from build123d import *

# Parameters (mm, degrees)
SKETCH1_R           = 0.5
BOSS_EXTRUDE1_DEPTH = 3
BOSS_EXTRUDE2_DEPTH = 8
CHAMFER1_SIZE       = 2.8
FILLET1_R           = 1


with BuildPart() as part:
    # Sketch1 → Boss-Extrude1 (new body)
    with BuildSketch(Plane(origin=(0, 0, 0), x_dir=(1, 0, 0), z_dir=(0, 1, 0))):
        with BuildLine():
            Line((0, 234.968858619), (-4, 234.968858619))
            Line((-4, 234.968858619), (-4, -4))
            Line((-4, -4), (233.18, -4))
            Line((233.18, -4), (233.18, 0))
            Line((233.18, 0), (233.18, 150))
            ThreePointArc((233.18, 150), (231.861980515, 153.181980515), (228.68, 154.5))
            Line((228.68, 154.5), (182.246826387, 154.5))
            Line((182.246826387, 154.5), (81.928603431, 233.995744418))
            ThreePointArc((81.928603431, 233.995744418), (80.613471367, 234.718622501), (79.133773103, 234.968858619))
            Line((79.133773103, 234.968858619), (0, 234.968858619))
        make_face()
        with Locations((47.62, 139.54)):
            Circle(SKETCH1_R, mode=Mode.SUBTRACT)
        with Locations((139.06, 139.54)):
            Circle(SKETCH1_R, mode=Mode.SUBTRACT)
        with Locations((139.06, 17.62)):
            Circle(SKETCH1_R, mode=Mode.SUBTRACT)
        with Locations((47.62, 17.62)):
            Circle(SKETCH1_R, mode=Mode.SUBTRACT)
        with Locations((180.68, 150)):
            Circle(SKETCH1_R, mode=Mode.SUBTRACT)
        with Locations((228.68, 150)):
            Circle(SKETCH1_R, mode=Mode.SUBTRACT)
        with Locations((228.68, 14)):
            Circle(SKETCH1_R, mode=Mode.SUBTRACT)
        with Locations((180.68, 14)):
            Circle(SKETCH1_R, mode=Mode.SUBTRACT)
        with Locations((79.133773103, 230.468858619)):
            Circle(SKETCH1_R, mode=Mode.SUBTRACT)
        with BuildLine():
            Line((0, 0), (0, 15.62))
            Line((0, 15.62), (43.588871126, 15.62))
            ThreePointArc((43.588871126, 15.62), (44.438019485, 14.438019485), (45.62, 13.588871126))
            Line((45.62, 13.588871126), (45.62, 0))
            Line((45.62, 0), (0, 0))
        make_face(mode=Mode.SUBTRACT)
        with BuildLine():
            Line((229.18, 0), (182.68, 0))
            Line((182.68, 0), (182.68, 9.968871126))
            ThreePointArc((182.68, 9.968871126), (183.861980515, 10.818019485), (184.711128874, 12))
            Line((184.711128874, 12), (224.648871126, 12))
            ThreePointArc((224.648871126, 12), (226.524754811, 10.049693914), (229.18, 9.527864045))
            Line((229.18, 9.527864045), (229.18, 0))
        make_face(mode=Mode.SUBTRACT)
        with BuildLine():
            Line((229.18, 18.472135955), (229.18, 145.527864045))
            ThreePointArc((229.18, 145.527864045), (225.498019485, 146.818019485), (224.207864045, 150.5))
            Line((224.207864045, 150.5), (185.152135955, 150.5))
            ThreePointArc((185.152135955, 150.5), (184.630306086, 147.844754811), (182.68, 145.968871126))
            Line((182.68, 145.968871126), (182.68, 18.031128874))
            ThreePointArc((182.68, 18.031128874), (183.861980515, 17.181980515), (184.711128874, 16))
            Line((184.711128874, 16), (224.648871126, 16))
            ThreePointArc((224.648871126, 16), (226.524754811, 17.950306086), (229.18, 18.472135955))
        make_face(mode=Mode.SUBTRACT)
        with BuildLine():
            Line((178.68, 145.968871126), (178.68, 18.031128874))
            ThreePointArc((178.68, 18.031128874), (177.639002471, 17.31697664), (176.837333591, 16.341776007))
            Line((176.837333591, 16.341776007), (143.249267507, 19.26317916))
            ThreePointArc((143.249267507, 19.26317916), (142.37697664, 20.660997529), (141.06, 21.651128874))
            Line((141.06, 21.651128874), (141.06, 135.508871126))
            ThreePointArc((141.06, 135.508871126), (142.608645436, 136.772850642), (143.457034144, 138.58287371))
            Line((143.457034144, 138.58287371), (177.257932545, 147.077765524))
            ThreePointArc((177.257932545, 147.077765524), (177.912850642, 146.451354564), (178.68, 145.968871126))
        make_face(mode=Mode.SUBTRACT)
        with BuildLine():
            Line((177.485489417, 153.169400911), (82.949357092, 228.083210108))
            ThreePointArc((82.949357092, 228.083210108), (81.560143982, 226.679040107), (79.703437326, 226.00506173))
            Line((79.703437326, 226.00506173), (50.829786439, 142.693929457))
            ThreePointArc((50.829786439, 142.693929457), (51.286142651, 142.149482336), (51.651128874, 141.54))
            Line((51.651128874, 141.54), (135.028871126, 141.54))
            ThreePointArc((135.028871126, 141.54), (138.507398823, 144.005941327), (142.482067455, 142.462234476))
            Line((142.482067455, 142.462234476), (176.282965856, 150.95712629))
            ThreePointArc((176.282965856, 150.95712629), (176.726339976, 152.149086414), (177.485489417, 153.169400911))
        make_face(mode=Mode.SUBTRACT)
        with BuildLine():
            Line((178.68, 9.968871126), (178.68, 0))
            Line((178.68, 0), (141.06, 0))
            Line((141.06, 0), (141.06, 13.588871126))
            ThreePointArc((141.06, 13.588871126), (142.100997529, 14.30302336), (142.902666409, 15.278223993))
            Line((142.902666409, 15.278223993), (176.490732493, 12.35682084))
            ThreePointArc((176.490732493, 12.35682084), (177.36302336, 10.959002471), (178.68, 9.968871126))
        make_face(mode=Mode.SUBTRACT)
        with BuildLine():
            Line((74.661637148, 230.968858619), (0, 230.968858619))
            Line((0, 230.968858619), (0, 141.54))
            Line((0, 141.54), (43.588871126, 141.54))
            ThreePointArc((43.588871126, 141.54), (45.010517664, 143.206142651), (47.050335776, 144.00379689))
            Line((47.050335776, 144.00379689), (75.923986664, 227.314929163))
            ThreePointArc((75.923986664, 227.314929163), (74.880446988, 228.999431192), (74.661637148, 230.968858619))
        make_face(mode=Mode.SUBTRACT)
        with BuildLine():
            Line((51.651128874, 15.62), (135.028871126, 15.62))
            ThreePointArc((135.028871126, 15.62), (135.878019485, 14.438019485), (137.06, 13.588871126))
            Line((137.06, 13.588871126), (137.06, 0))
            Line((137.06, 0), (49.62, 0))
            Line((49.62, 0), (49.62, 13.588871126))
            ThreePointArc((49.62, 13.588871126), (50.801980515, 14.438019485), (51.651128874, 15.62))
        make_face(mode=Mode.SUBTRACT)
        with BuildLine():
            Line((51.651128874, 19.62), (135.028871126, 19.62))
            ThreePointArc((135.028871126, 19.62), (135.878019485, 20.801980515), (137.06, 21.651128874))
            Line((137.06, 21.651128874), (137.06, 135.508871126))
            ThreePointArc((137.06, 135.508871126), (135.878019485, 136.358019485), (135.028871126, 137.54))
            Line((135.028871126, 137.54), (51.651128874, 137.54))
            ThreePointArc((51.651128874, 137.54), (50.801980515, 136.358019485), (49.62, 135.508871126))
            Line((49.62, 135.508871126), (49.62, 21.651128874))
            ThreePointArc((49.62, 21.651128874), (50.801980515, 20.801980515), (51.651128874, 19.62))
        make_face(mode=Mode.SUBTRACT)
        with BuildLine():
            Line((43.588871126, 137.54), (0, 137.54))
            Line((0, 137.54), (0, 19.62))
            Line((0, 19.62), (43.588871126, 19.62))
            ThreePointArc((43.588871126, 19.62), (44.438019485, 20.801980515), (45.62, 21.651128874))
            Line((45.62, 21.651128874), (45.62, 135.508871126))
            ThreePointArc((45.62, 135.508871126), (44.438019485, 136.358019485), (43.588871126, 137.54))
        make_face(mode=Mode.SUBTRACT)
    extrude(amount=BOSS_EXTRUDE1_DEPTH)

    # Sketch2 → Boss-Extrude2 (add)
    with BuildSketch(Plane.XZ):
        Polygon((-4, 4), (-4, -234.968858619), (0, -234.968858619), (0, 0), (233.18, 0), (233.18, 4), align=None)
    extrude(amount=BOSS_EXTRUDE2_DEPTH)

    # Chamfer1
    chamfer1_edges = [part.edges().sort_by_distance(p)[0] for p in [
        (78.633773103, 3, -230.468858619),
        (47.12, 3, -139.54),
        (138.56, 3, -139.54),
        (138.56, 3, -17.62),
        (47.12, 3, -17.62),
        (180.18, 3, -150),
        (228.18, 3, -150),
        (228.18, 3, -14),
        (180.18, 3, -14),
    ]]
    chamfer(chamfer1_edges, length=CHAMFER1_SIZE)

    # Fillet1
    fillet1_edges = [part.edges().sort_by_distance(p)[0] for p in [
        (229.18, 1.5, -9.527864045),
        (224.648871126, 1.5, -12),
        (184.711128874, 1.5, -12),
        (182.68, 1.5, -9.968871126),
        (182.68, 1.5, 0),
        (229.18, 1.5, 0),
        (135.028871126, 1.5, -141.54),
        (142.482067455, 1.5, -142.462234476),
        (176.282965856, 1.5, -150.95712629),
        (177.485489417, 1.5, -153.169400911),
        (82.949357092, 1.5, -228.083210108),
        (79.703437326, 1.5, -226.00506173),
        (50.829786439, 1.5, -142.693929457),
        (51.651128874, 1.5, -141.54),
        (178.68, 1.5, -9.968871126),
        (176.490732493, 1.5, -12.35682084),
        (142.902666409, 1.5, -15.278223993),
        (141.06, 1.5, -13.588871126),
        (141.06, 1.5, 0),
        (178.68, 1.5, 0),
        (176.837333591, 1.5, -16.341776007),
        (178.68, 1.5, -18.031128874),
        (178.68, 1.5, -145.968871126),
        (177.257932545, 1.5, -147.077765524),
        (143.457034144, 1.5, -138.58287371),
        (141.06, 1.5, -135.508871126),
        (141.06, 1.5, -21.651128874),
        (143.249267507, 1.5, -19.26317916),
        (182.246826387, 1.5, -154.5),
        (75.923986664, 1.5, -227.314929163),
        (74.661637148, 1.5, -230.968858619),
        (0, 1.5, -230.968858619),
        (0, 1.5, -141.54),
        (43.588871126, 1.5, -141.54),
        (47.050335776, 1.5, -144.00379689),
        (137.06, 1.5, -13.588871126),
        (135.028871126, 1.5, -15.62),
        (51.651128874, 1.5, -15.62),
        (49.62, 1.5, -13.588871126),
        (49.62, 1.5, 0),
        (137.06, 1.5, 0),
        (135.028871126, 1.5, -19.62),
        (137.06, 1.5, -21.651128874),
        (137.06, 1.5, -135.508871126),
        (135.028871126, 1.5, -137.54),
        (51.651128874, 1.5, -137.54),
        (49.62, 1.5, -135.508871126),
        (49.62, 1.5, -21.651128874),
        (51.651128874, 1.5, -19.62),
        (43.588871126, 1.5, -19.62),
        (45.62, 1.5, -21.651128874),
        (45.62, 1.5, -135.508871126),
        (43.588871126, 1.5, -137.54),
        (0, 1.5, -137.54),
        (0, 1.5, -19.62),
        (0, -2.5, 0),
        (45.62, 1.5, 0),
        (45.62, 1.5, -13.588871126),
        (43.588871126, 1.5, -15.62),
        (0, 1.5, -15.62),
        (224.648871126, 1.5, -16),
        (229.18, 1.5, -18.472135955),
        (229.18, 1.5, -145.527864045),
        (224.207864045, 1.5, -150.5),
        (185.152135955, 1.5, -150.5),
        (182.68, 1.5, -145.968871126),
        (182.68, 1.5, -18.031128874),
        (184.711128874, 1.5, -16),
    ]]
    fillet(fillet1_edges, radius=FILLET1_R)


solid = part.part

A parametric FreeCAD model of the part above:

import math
import FreeCAD as App
import Part
import Sketcher


def edges_at(feature, points):
    """Names of the edges that pass closest to the given points."""
    edges = feature.Shape.Edges
    near = lambda p: min(range(len(edges)), key=lambda i: edges[i].distToShape(Part.Vertex(*p))[0])
    return sorted({f"Edge{near(p) + 1}" for p in points})

doc = App.newDocument("Part")
params = doc.addObject("Spreadsheet::Sheet", "Params")
for row, (alias, value) in enumerate([
    ("sketch1_diameter", "1 mm"),
    ("sketch1_radius", "4.5 mm"),
    ("sketch1_height", "154 mm"),
    ("sketch1_width", "46.5 mm"),
    ("sketch1_width2", "237.18 mm"),
    ("pad1_length", "3 mm"),
    ("sketch2_width", "4 mm"),
    ("sketch2_width2", "233.18 mm"),
    ("pad2_length", "8 mm"),
    ("chamfer_size", "2.8 mm"),
    ("fillet_radius", "1 mm"),
], start=1):
    params.set(f"A{row}", alias)
    params.set(f"B{row}", "=" + value)
    params.setAlias(f"B{row}", alias)

body = doc.addObject("PartDesign::Body", "Body")

# Sketch on XZ plane
sketch1 = body.newObject("Sketcher::SketchObject", "Sketch")
sketch1.AttachmentSupport = (doc.getObject("XZ_Plane"), [""])
sketch1.MapMode = "FlatFace"
sketch1.addGeometry([
    Part.LineSegment(App.Vector(-4, -235, 0), App.Vector(-4, 4, 0)),  # 0
    Part.LineSegment(App.Vector(-4, 4, 0), App.Vector(233.2, 4, 0)),  # 1
    Part.LineSegment(App.Vector(233.2, 4, 0), App.Vector(233.2, -150, 0)),  # 2
    Part.ArcOfCircle(Part.Circle(App.Vector(228.7, -150, 0), App.Vector(0, 0, 1), 4.5), math.radians(-90), math.radians(0)),  # 3
    Part.LineSegment(App.Vector(228.7, -154.5, 0), App.Vector(182.2, -154.5, 0)),  # 4
    Part.LineSegment(App.Vector(182.2, -154.5, 0), App.Vector(81.9, -234, 0)),  # 5
    Part.ArcOfCircle(Part.Circle(App.Vector(79.1, -230.5, 0), App.Vector(0, 0, 1), 4.5), math.radians(-90), math.radians(-52)),  # 6
    Part.LineSegment(App.Vector(79.1, -235, 0), App.Vector(-4, -235, 0)),  # 7
    Part.LineSegment(App.Vector(45.6, 0, 0), App.Vector(0, 0, 0)),  # 8
    Part.LineSegment(App.Vector(0, 0, 0), App.Vector(0, -15.6, 0)),  # 9
    Part.LineSegment(App.Vector(0, -15.6, 0), App.Vector(43.6, -15.6, 0)),  # 10
    Part.ArcOfCircle(Part.Circle(App.Vector(47.6, -17.6, 0), App.Vector(0, 0, 1), 4.5), math.radians(116), math.radians(154)),  # 11
    Part.LineSegment(App.Vector(45.6, -13.6, 0), App.Vector(45.6, 0, 0)),  # 12
    Part.Circle(App.Vector(47.6, -17.6, 0), App.Vector(0, 0, 1), 0.5),  # 13
    Part.ArcOfCircle(Part.Circle(App.Vector(47.6, -17.6, 0), App.Vector(0, 0, 1), 4.5), math.radians(26), math.radians(64)),  # 14
    Part.LineSegment(App.Vector(51.7, -15.6, 0), App.Vector(135, -15.6, 0)),  # 15
    Part.ArcOfCircle(Part.Circle(App.Vector(139.1, -17.6, 0), App.Vector(0, 0, 1), 4.5), math.radians(116), math.radians(154)),  # 16
    Part.LineSegment(App.Vector(137.1, -13.6, 0), App.Vector(137.1, 0, 0)),  # 17
    Part.LineSegment(App.Vector(137.1, 0, 0), App.Vector(49.6, 0, 0)),  # 18
    Part.LineSegment(App.Vector(49.6, 0, 0), App.Vector(49.6, -13.6, 0)),  # 19
    Part.LineSegment(App.Vector(0, -137.5, 0), App.Vector(43.6, -137.5, 0)),  # 20
    Part.ArcOfCircle(Part.Circle(App.Vector(47.6, -139.5, 0), App.Vector(0, 0, 1), 4.5), math.radians(116), math.radians(154)),  # 21
    Part.LineSegment(App.Vector(45.6, -135.5, 0), App.Vector(45.6, -21.7, 0)),  # 22
    Part.ArcOfCircle(Part.Circle(App.Vector(47.6, -17.6, 0), App.Vector(0, 0, 1), 4.5), math.radians(-154), math.radians(-116)),  # 23
    Part.LineSegment(App.Vector(43.6, -19.6, 0), App.Vector(0, -19.6, 0)),  # 24
    Part.LineSegment(App.Vector(0, -19.6, 0), App.Vector(0, -137.5, 0)),  # 25
    Part.LineSegment(App.Vector(135, -19.6, 0), App.Vector(51.7, -19.6, 0)),  # 26
    Part.ArcOfCircle(Part.Circle(App.Vector(47.6, -17.6, 0), App.Vector(0, 0, 1), 4.5), math.radians(-64), math.radians(-26)),  # 27
    Part.LineSegment(App.Vector(49.6, -21.7, 0), App.Vector(49.6, -135.5, 0)),  # 28
    Part.ArcOfCircle(Part.Circle(App.Vector(47.6, -139.5, 0), App.Vector(0, 0, 1), 4.5), math.radians(26), math.radians(64)),  # 29
    Part.LineSegment(App.Vector(51.7, -137.5, 0), App.Vector(135, -137.5, 0)),  # 30
    Part.ArcOfCircle(Part.Circle(App.Vector(139.1, -139.5, 0), App.Vector(0, 0, 1), 4.5), math.radians(116), math.radians(154)),  # 31
    Part.LineSegment(App.Vector(137.1, -135.5, 0), App.Vector(137.1, -21.7, 0)),  # 32
    Part.ArcOfCircle(Part.Circle(App.Vector(139.1, -17.6, 0), App.Vector(0, 0, 1), 4.5), math.radians(-154), math.radians(-116)),  # 33
    Part.Circle(App.Vector(139.1, -17.6, 0), App.Vector(0, 0, 1), 0.5),  # 34
    Part.ArcOfCircle(Part.Circle(App.Vector(180.7, -14, 0), App.Vector(0, 0, 1), 4.5), math.radians(116), math.radians(159)),  # 35
    Part.LineSegment(App.Vector(178.7, -10, 0), App.Vector(178.7, 0, 0)),  # 36
    Part.LineSegment(App.Vector(178.7, 0, 0), App.Vector(141.1, 0, 0)),  # 37
    Part.LineSegment(App.Vector(141.1, 0, 0), App.Vector(141.1, -13.6, 0)),  # 38
    Part.ArcOfCircle(Part.Circle(App.Vector(139.1, -17.6, 0), App.Vector(0, 0, 1), 4.5), math.radians(31), math.radians(64)),  # 39
    Part.LineSegment(App.Vector(142.9, -15.3, 0), App.Vector(176.5, -12.4, 0)),  # 40
    Part.Circle(App.Vector(180.7, -14, 0), App.Vector(0, 0, 1), 0.5),  # 41
    Part.LineSegment(App.Vector(229.2, -9.5, 0), App.Vector(229.2, 0, 0)),  # 42
    Part.LineSegment(App.Vector(229.2, 0, 0), App.Vector(182.7, 0, 0)),  # 43
    Part.LineSegment(App.Vector(182.7, 0, 0), App.Vector(182.7, -10, 0)),  # 44
    Part.ArcOfCircle(Part.Circle(App.Vector(180.7, -14, 0), App.Vector(0, 0, 1), 4.5), math.radians(26), math.radians(64)),  # 45
    Part.LineSegment(App.Vector(184.7, -12, 0), App.Vector(224.6, -12, 0)),  # 46
    Part.ArcOfCircle(Part.Circle(App.Vector(228.7, -14, 0), App.Vector(0, 0, 1), 4.5), math.radians(84), math.radians(154)),  # 47
    Part.Circle(App.Vector(228.7, -14, 0), App.Vector(0, 0, 1), 0.5),  # 48
    Part.ArcOfCircle(Part.Circle(App.Vector(180.7, -150, 0), App.Vector(0, 0, 1), 4.5), math.radians(116), math.radians(140)),  # 49
    Part.LineSegment(App.Vector(178.7, -146, 0), App.Vector(178.7, -18, 0)),  # 50
    Part.ArcOfCircle(Part.Circle(App.Vector(180.7, -14, 0), App.Vector(0, 0, 1), 4.5), math.radians(-149), math.radians(-116)),  # 51
    Part.LineSegment(App.Vector(176.8, -16.3, 0), App.Vector(143.2, -19.3, 0)),  # 52
    Part.ArcOfCircle(Part.Circle(App.Vector(139.1, -17.6, 0), App.Vector(0, 0, 1), 4.5), math.radians(-64), math.radians(-21)),  # 53
    Part.LineSegment(App.Vector(141.1, -21.7, 0), App.Vector(141.1, -135.5, 0)),  # 54
    Part.ArcOfCircle(Part.Circle(App.Vector(139.1, -139.5, 0), App.Vector(0, 0, 1), 4.5), math.radians(12), math.radians(64)),  # 55
    Part.LineSegment(App.Vector(143.5, -138.6, 0), App.Vector(177.3, -147.1, 0)),  # 56
    Part.LineSegment(App.Vector(229.2, -145.5, 0), App.Vector(229.2, -18.5, 0)),  # 57
    Part.ArcOfCircle(Part.Circle(App.Vector(228.7, -14, 0), App.Vector(0, 0, 1), 4.5), math.radians(-154), math.radians(-84)),  # 58
    Part.LineSegment(App.Vector(224.6, -16, 0), App.Vector(184.7, -16, 0)),  # 59
    Part.ArcOfCircle(Part.Circle(App.Vector(180.7, -14, 0), App.Vector(0, 0, 1), 4.5), math.radians(-64), math.radians(-26)),  # 60
    Part.LineSegment(App.Vector(182.7, -18, 0), App.Vector(182.7, -146, 0)),  # 61
    Part.ArcOfCircle(Part.Circle(App.Vector(180.7, -150, 0), App.Vector(0, 0, 1), 4.5), math.radians(-6), math.radians(64)),  # 62
    Part.LineSegment(App.Vector(185.2, -150.5, 0), App.Vector(224.2, -150.5, 0)),  # 63
    Part.ArcOfCircle(Part.Circle(App.Vector(228.7, -150, 0), App.Vector(0, 0, 1), 4.5), math.radians(84), math.radians(186)),  # 64
    Part.Circle(App.Vector(47.6, -139.5, 0), App.Vector(0, 0, 1), 0.5),  # 65
    Part.LineSegment(App.Vector(0, -231, 0), App.Vector(74.7, -231, 0)),  # 66
    Part.ArcOfCircle(Part.Circle(App.Vector(79.1, -230.5, 0), App.Vector(0, 0, 1), 4.5), math.radians(136), math.radians(186)),  # 67
    Part.LineSegment(App.Vector(75.9, -227.3, 0), App.Vector(47.1, -144, 0)),  # 68
    Part.ArcOfCircle(Part.Circle(App.Vector(47.6, -139.5, 0), App.Vector(0, 0, 1), 4.5), math.radians(-154), math.radians(-97)),  # 69
    Part.LineSegment(App.Vector(43.6, -141.5, 0), App.Vector(0, -141.5, 0)),  # 70
    Part.LineSegment(App.Vector(0, -141.5, 0), App.Vector(0, -231, 0)),  # 71
    Part.LineSegment(App.Vector(82.9, -228.1, 0), App.Vector(177.5, -153.2, 0)),  # 72
    Part.ArcOfCircle(Part.Circle(App.Vector(180.7, -150, 0), App.Vector(0, 0, 1), 4.5), math.radians(-168), math.radians(-135)),  # 73
    Part.LineSegment(App.Vector(176.3, -151, 0), App.Vector(142.5, -142.5, 0)),  # 74
    Part.ArcOfCircle(Part.Circle(App.Vector(139.1, -139.5, 0), App.Vector(0, 0, 1), 4.5), math.radians(-154), math.radians(-40)),  # 75
    Part.LineSegment(App.Vector(135, -141.5, 0), App.Vector(51.7, -141.5, 0)),  # 76
    Part.ArcOfCircle(Part.Circle(App.Vector(47.6, -139.5, 0), App.Vector(0, 0, 1), 4.5), math.radians(-44.5), math.radians(-26.39)),  # 77
    Part.LineSegment(App.Vector(50.8, -142.7, 0), App.Vector(79.7, -226, 0)),  # 78
    Part.ArcOfCircle(Part.Circle(App.Vector(79.1, -230.5, 0), App.Vector(0, 0, 1), 4.5), math.radians(32), math.radians(83)),  # 79
    Part.Circle(App.Vector(79.1, -230.5, 0), App.Vector(0, 0, 1), 0.5),  # 80
    Part.Circle(App.Vector(139.1, -139.5, 0), App.Vector(0, 0, 1), 0.5),  # 81
    Part.Circle(App.Vector(180.7, -150, 0), App.Vector(0, 0, 1), 0.5),  # 82
    Part.Circle(App.Vector(228.7, -150, 0), App.Vector(0, 0, 1), 0.5),  # 83
], False)
sketch1.addConstraint([
    Sketcher.Constraint("Coincident", 0, 2, 1, 1),
    Sketcher.Constraint("Coincident", 1, 2, 2, 1),
    Sketcher.Constraint("Tangent", 2, 2, 3, 2),
    Sketcher.Constraint("Tangent", 3, 1, 4, 1),
    Sketcher.Constraint("Coincident", 4, 2, 5, 1),
    Sketcher.Constraint("Tangent", 5, 2, 6, 2),
    Sketcher.Constraint("Tangent", 6, 1, 7, 1),
    Sketcher.Constraint("Coincident", 7, 2, 0, 1),
    Sketcher.Constraint("Coincident", 8, 2, 9, 1),
    Sketcher.Constraint("Coincident", 9, 2, 10, 1),
    Sketcher.Constraint("Coincident", 10, 2, 11, 2),
    Sketcher.Constraint("Coincident", 11, 1, 12, 1),
    Sketcher.Constraint("Coincident", 12, 2, 8, 1),
    Sketcher.Constraint("Coincident", 14, 1, 15, 1),
    Sketcher.Constraint("Coincident", 15, 2, 16, 2),
    Sketcher.Constraint("Coincident", 16, 1, 17, 1),
    Sketcher.Constraint("Coincident", 17, 2, 18, 1),
    Sketcher.Constraint("Coincident", 18, 2, 19, 1),
    Sketcher.Constraint("Coincident", 19, 2, 14, 2),
    Sketcher.Constraint("Coincident", 20, 2, 21, 2),
    Sketcher.Constraint("Coincident", 21, 1, 22, 1),
    Sketcher.Constraint("Coincident", 22, 2, 23, 2),
    Sketcher.Constraint("Coincident", 23, 1, 24, 1),
    Sketcher.Constraint("Coincident", 24, 2, 25, 1),
    Sketcher.Constraint("Coincident", 25, 2, 20, 1),
    Sketcher.Constraint("Coincident", 26, 2, 27, 2),
    Sketcher.Constraint("Coincident", 27, 1, 28, 1),
    Sketcher.Constraint("Coincident", 28, 2, 29, 2),
    Sketcher.Constraint("Coincident", 29, 1, 30, 1),
    Sketcher.Constraint("Coincident", 30, 2, 31, 2),
    Sketcher.Constraint("Coincident", 31, 1, 32, 1),
    Sketcher.Constraint("Coincident", 32, 2, 33, 2),
    Sketcher.Constraint("Coincident", 33, 1, 26, 1),
    Sketcher.Constraint("Coincident", 35, 1, 36, 1),
    Sketcher.Constraint("Coincident", 36, 2, 37, 1),
    Sketcher.Constraint("Coincident", 37, 2, 38, 1),
    Sketcher.Constraint("Coincident", 38, 2, 39, 2),
    Sketcher.Constraint("Coincident", 39, 1, 40, 1),
    Sketcher.Constraint("Coincident", 40, 2, 35, 2),
    Sketcher.Constraint("Coincident", 42, 2, 43, 1),
    Sketcher.Constraint("Coincident", 43, 2, 44, 1),
    Sketcher.Constraint("Coincident", 44, 2, 45, 2),
    Sketcher.Constraint("Coincident", 45, 1, 46, 1),
    Sketcher.Constraint("Coincident", 46, 2, 47, 2),
    Sketcher.Constraint("Coincident", 47, 1, 42, 1),
    Sketcher.Constraint("Coincident", 49, 1, 50, 1),
    Sketcher.Constraint("Coincident", 50, 2, 51, 2),
    Sketcher.Constraint("Coincident", 51, 1, 52, 1),
    Sketcher.Constraint("Coincident", 52, 2, 53, 2),
    Sketcher.Constraint("Coincident", 53, 1, 54, 1),
    Sketcher.Constraint("Coincident", 54, 2, 55, 2),
    Sketcher.Constraint("Coincident", 55, 1, 56, 1),
    Sketcher.Constraint("Coincident", 56, 2, 49, 2),
    Sketcher.Constraint("Coincident", 57, 2, 58, 2),
    Sketcher.Constraint("Coincident", 58, 1, 59, 1),
    Sketcher.Constraint("Coincident", 59, 2, 60, 2),
    Sketcher.Constraint("Coincident", 60, 1, 61, 1),
    Sketcher.Constraint("Coincident", 61, 2, 62, 2),
    Sketcher.Constraint("Coincident", 62, 1, 63, 1),
    Sketcher.Constraint("Coincident", 63, 2, 64, 2),
    Sketcher.Constraint("Coincident", 64, 1, 57, 1),
    Sketcher.Constraint("Coincident", 66, 2, 67, 2),
    Sketcher.Constraint("Coincident", 67, 1, 68, 1),
    Sketcher.Constraint("Coincident", 68, 2, 69, 2),
    Sketcher.Constraint("Coincident", 69, 1, 70, 1),
    Sketcher.Constraint("Coincident", 70, 2, 71, 1),
    Sketcher.Constraint("Coincident", 71, 2, 66, 1),
    Sketcher.Constraint("Coincident", 72, 2, 73, 2),
    Sketcher.Constraint("Coincident", 73, 1, 74, 1),
    Sketcher.Constraint("Coincident", 74, 2, 75, 2),
    Sketcher.Constraint("Coincident", 75, 1, 76, 1),
    Sketcher.Constraint("Coincident", 76, 2, 77, 2),
    Sketcher.Constraint("Coincident", 77, 1, 78, 1),
    Sketcher.Constraint("Coincident", 78, 2, 79, 2),
    Sketcher.Constraint("Coincident", 79, 1, 72, 1),
    Sketcher.Constraint("Vertical", 0),
    Sketcher.Constraint("Horizontal", 1),
    Sketcher.Constraint("Vertical", 2),
    Sketcher.Constraint("Horizontal", 4),
    Sketcher.Constraint("Horizontal", 7),
    Sketcher.Constraint("Horizontal", 8),
    Sketcher.Constraint("Vertical", 9),
    Sketcher.Constraint("Horizontal", 10),
    Sketcher.Constraint("Vertical", 12),
    Sketcher.Constraint("Horizontal", 15),
    Sketcher.Constraint("Vertical", 17),
    Sketcher.Constraint("Horizontal", 18),
    Sketcher.Constraint("Vertical", 19),
    Sketcher.Constraint("Horizontal", 20),
    Sketcher.Constraint("Vertical", 22),
    Sketcher.Constraint("Horizontal", 24),
    Sketcher.Constraint("Vertical", 25),
    Sketcher.Constraint("Horizontal", 26),
    Sketcher.Constraint("Vertical", 28),
    Sketcher.Constraint("Horizontal", 30),
    Sketcher.Constraint("Vertical", 32),
    Sketcher.Constraint("Vertical", 36),
    Sketcher.Constraint("Horizontal", 37),
    Sketcher.Constraint("Vertical", 38),
    Sketcher.Constraint("Vertical", 42),
    Sketcher.Constraint("Horizontal", 43),
    Sketcher.Constraint("Vertical", 44),
    Sketcher.Constraint("Horizontal", 46),
    Sketcher.Constraint("Vertical", 50),
    Sketcher.Constraint("Vertical", 54),
    Sketcher.Constraint("Vertical", 57),
    Sketcher.Constraint("Horizontal", 59),
    Sketcher.Constraint("Vertical", 61),
    Sketcher.Constraint("Horizontal", 63),
    Sketcher.Constraint("Horizontal", 66),
    Sketcher.Constraint("Horizontal", 70),
    Sketcher.Constraint("Vertical", 71),
    Sketcher.Constraint("Horizontal", 76),
    Sketcher.Constraint("Coincident", 8, 2, -1, 1),
    Sketcher.Constraint("Coincident", 13, 3, 11, 3),
    Sketcher.Constraint("Coincident", 14, 3, 11, 3),
    Sketcher.Constraint("Coincident", 23, 3, 11, 3),
    Sketcher.Constraint("Coincident", 27, 3, 11, 3),
    Sketcher.Constraint("Coincident", 29, 3, 21, 3),
    Sketcher.Constraint("Coincident", 33, 3, 16, 3),
    Sketcher.Constraint("Coincident", 34, 3, 16, 3),
    Sketcher.Constraint("Coincident", 39, 3, 16, 3),
    Sketcher.Constraint("Coincident", 41, 3, 35, 3),
    Sketcher.Constraint("Coincident", 45, 3, 35, 3),
    Sketcher.Constraint("Coincident", 48, 3, 47, 3),
    Sketcher.Constraint("Coincident", 51, 3, 35, 3),
    Sketcher.Constraint("Coincident", 53, 3, 16, 3),
    Sketcher.Constraint("Coincident", 55, 3, 31, 3),
    Sketcher.Constraint("Coincident", 58, 3, 47, 3),
    Sketcher.Constraint("Coincident", 60, 3, 35, 3),
    Sketcher.Constraint("Coincident", 62, 3, 49, 3),
    Sketcher.Constraint("Coincident", 64, 3, 3, 3),
    Sketcher.Constraint("Coincident", 65, 3, 21, 3),
    Sketcher.Constraint("Coincident", 67, 3, 6, 3),
    Sketcher.Constraint("Coincident", 69, 3, 21, 3),
    Sketcher.Constraint("Coincident", 73, 3, 49, 3),
    Sketcher.Constraint("Coincident", 75, 3, 31, 3),
    Sketcher.Constraint("Coincident", 77, 3, 21, 3),
    Sketcher.Constraint("Coincident", 79, 3, 6, 3),
    Sketcher.Constraint("Coincident", 80, 3, 6, 3),
    Sketcher.Constraint("Coincident", 81, 3, 31, 3),
    Sketcher.Constraint("Coincident", 82, 3, 49, 3),
    Sketcher.Constraint("Coincident", 83, 3, 3, 3),
    Sketcher.Constraint("Equal", 3, 6),
    Sketcher.Constraint("Equal", 6, 11),
    Sketcher.Constraint("Equal", 11, 14),
    Sketcher.Constraint("Equal", 14, 16),
    Sketcher.Constraint("Equal", 16, 21),
    Sketcher.Constraint("Equal", 21, 23),
    Sketcher.Constraint("Equal", 23, 27),
    Sketcher.Constraint("Equal", 27, 29),
    Sketcher.Constraint("Equal", 29, 31),
    Sketcher.Constraint("Equal", 31, 33),
    Sketcher.Constraint("Equal", 13, 34),
    Sketcher.Constraint("Equal", 33, 35),
    Sketcher.Constraint("Equal", 35, 39),
    Sketcher.Constraint("Equal", 34, 41),
    Sketcher.Constraint("Equal", 39, 45),
    Sketcher.Constraint("Equal", 45, 47),
    Sketcher.Constraint("Equal", 41, 48),
    Sketcher.Constraint("Equal", 47, 49),
    Sketcher.Constraint("Equal", 49, 51),
    Sketcher.Constraint("Equal", 51, 53),
    Sketcher.Constraint("Equal", 53, 55),
    Sketcher.Constraint("Equal", 55, 58),
    Sketcher.Constraint("Equal", 58, 60),
    Sketcher.Constraint("Equal", 60, 62),
    Sketcher.Constraint("Equal", 62, 64),
    Sketcher.Constraint("Equal", 48, 65),
    Sketcher.Constraint("Equal", 64, 67),
    Sketcher.Constraint("Equal", 67, 69),
    Sketcher.Constraint("Equal", 69, 73),
    Sketcher.Constraint("Equal", 73, 75),
    Sketcher.Constraint("Equal", 75, 77),
    Sketcher.Constraint("Equal", 77, 79),
    Sketcher.Constraint("Equal", 65, 80),
    Sketcher.Constraint("Equal", 80, 81),
    Sketcher.Constraint("Equal", 81, 82),
    Sketcher.Constraint("Equal", 82, 83),
    Sketcher.Constraint("PointOnObject", 17, 2, -1),
    Sketcher.Constraint("PointOnObject", 24, 2, -2),
    Sketcher.Constraint("PointOnObject", 36, 2, -1),
    Sketcher.Constraint("PointOnObject", 42, 2, -1),
    Sketcher.Constraint("PointOnObject", 70, 2, -2),
    Sketcher.Constraint("Parallel", 40, 52),
    Sketcher.Constraint("Parallel", 5, 72),
    Sketcher.Constraint("Parallel", 56, 74),
    Sketcher.Constraint("Parallel", 68, 78),
    Sketcher.Constraint("Horizontal", 14, 3, 16, 3),
    Sketcher.Constraint("Horizontal", 29, 3, 31, 3),
    Sketcher.Constraint("Horizontal", 45, 3, 47, 3),
    Sketcher.Constraint("Horizontal", 3, 3, 49, 3),
    Sketcher.Constraint("Horizontal", 10, 2, 14, 1),
    Sketcher.Constraint("Horizontal", 11, 1, 16, 1),
    Sketcher.Constraint("Horizontal", 16, 1, 19, 2),
    Sketcher.Constraint("Horizontal", 24, 2, 26, 2),
    Sketcher.Constraint("Horizontal", 22, 2, 27, 1),
    Sketcher.Constraint("Horizontal", 21, 1, 28, 2),
    Sketcher.Constraint("Horizontal", 25, 2, 29, 1),
    Sketcher.Constraint("Horizontal", 28, 2, 31, 1),
    Sketcher.Constraint("Horizontal", 27, 1, 32, 2),
    Sketcher.Constraint("Horizontal", 19, 2, 38, 2),
    Sketcher.Constraint("Horizontal", 35, 1, 44, 2),
    Sketcher.Constraint("Horizontal", 32, 2, 53, 1),
    Sketcher.Constraint("Horizontal", 50, 2, 60, 1),
    Sketcher.Constraint("Horizontal", 49, 1, 61, 2),
    Sketcher.Constraint("Horizontal", 70, 2, 75, 1),
    Sketcher.Constraint("Vertical", 3, 3, 47, 3),
    Sketcher.Constraint("Vertical", 10, 2, 20, 2),
    Sketcher.Constraint("Vertical", 12, 2, 21, 1),
    Sketcher.Constraint("Vertical", 20, 2, 23, 1),
    Sketcher.Constraint("Vertical", 36, 2, 49, 1),
    Sketcher.Constraint("Vertical", 47, 1, 57, 2),
    Sketcher.Constraint("Vertical", 46, 2, 58, 1),
    Sketcher.Constraint("Vertical", 23, 1, 69, 1),
    Sketcher.Constraint("Equal", 40, 52),
    Sketcher.Constraint("Equal", 56, 74),
    Sketcher.Constraint("Equal", 68, 78),
    Sketcher.Constraint("Diameter", 13, 1.0),
    Sketcher.Constraint("Radius", 3, 4.5),
    Sketcher.Constraint("DistanceY", 2, 2, 2, 1, 154.0),
    Sketcher.Constraint("DistanceX", 43, 2, 43, 1, 46.5),
    Sketcher.Constraint("DistanceY", 3, 3, -1, 1, 150.0),
    Sketcher.Constraint("DistanceY", 35, 3, -1, 1, 14.0),
    Sketcher.Constraint("DistanceX", 0, 2, -1, 1, 4.0),
    Sketcher.Constraint("DistanceY", 45, 1, -1, 1, 12.0),
    Sketcher.Constraint("DistanceX", 1, 1, 1, 2, 237.18),
    Sketcher.Constraint("DistanceX", 8, 2, 8, 1, 45.62),
    Sketcher.Constraint("DistanceX", 18, 2, 18, 1, 87.44),
    Sketcher.Constraint("DistanceX", 37, 2, 37, 1, 37.62),
    Sketcher.Constraint("DistanceY", 9, 2, 9, 1, 15.62),
    Sketcher.Constraint("DistanceY", 25, 2, 25, 1, 117.92),
    Sketcher.Constraint("DistanceY", 62, 1, -1, 1, 150.5),
    Sketcher.Constraint("DistanceX", -1, 1, 11, 3, 47.62),
    Sketcher.Constraint("DistanceY", 11, 3, -1, 1, 17.62),
    Sketcher.Constraint("DistanceX", -1, 1, 35, 3, 180.68),
    Sketcher.Constraint("DistanceY", 0, 1, 0, 2, 238.968859),
    Sketcher.Constraint("DistanceY", 71, 2, 71, 1, 89.428859),
    Sketcher.Constraint("DistanceY", 72, 2, -1, 1, 153.169401),
    Sketcher.Constraint("Distance", 5, 127.997341),
    Sketcher.Constraint("Distance", 56, 34.852029),
    Sketcher.Constraint("DistanceX", 4, 2, 4, 1, 46.433174),
    Sketcher.Constraint("DistanceY", 40, 2, -1, 1, 12.356821),
    Sketcher.Constraint("DistanceY", 67, 1, -1, 1, 227.314929),
    Sketcher.Constraint("DistanceY", 78, 2, -1, 1, 226.005062),
    Sketcher.Constraint("Distance", 40, 33.714875),
    Sketcher.Constraint("DistanceX", -1, 1, 55, 1, 143.457034),
])
sketch1.setExpression("Constraints[218]", "Params.sketch1_diameter")
sketch1.setExpression("Constraints[219]", "Params.sketch1_radius")
sketch1.setExpression("Constraints[220]", "Params.sketch1_height")
sketch1.setExpression("Constraints[221]", "Params.sketch1_width")
sketch1.setExpression("Constraints[226]", "Params.sketch1_width2")
pad1 = body.newObject("PartDesign::Pad", "Pad")
pad1.Profile = sketch1
pad1.setExpression("Length", "Params.pad1_length")
pad1.Reversed = True

# Sketch on XZ plane
sketch2 = body.newObject("Sketcher::SketchObject", "Sketch001")
sketch2.AttachmentSupport = (doc.getObject("XZ_Plane"), [""])
sketch2.MapMode = "FlatFace"
sketch2.addGeometry([
    Part.LineSegment(App.Vector(-4, 4, 0), App.Vector(-4, -235, 0)),  # 0
    Part.LineSegment(App.Vector(-4, -235, 0), App.Vector(0, -235, 0)),  # 1
    Part.LineSegment(App.Vector(0, -235, 0), App.Vector(0, 0, 0)),  # 2
    Part.LineSegment(App.Vector(0, 0, 0), App.Vector(233.2, 0, 0)),  # 3
    Part.LineSegment(App.Vector(233.2, 0, 0), App.Vector(233.2, 4, 0)),  # 4
    Part.LineSegment(App.Vector(233.2, 4, 0), App.Vector(-4, 4, 0)),  # 5
], False)
sketch2.addConstraint([
    Sketcher.Constraint("Coincident", 0, 2, 1, 1),
    Sketcher.Constraint("Coincident", 1, 2, 2, 1),
    Sketcher.Constraint("Coincident", 2, 2, 3, 1),
    Sketcher.Constraint("Coincident", 3, 2, 4, 1),
    Sketcher.Constraint("Coincident", 4, 2, 5, 1),
    Sketcher.Constraint("Coincident", 5, 2, 0, 1),
    Sketcher.Constraint("Vertical", 0),
    Sketcher.Constraint("Horizontal", 1),
    Sketcher.Constraint("Vertical", 2),
    Sketcher.Constraint("Horizontal", 3),
    Sketcher.Constraint("Vertical", 4),
    Sketcher.Constraint("Horizontal", 5),
    Sketcher.Constraint("Coincident", 2, 2, -1, 1),
    Sketcher.Constraint("Equal", 1, 4),
    Sketcher.Constraint("DistanceX", 1, 1, 1, 2, 4.0),
    Sketcher.Constraint("DistanceX", 3, 1, 3, 2, 233.18),
    Sketcher.Constraint("DistanceY", 0, 2, 0, 1, 238.968859),
])
sketch2.setExpression("Constraints[14]", "Params.sketch2_width")
sketch2.setExpression("Constraints[15]", "Params.sketch2_width2")
pad2 = body.newObject("PartDesign::Pad", "Pad001")
pad2.Profile = sketch2
pad2.setExpression("Length", "Params.pad2_length")
doc.recompute()

chamfer = body.newObject("PartDesign::Chamfer", "Chamfer")
chamfer.Base = (pad2, edges_at(pad2, [
    (78.634, 3, -230.469),
    (47.12, 3, -139.54),
    (138.56, 3, -139.54),
    (138.56, 3, -17.62),
    (47.12, 3, -17.62),
    (180.18, 3, -150),
    (228.18, 3, -150),
    (228.18, 3, -14),
    (180.18, 3, -14),
]))
chamfer.setExpression("Size", "Params.chamfer_size")
doc.recompute()

fillet = body.newObject("PartDesign::Fillet", "Fillet")
fillet.Base = (chamfer, edges_at(chamfer, [
    (229.18, 1.5, -9.528),
    (224.649, 1.5, -12),
    (184.711, 1.5, -12),
    (182.68, 1.5, -9.969),
    (182.68, 1.5, 0),
    (229.18, 1.5, 0),
    (135.029, 1.5, -141.54),
    (142.482, 1.5, -142.462),
    (176.283, 1.5, -150.957),
    (177.485, 1.5, -153.169),
    (82.949, 1.5, -228.083),
    (79.703, 1.5, -226.005),
    (50.83, 1.5, -142.694),
    (51.651, 1.5, -141.54),
    (178.68, 1.5, -9.969),
    (176.491, 1.5, -12.357),
    (142.903, 1.5, -15.278),
    (141.06, 1.5, -13.589),
    (141.06, 1.5, 0),
    (178.68, 1.5, 0),
    (176.837, 1.5, -16.342),
    (178.68, 1.5, -18.031),
    (178.68, 1.5, -145.969),
    (177.258, 1.5, -147.078),
    (143.457, 1.5, -138.583),
    (141.06, 1.5, -135.509),
    (141.06, 1.5, -21.651),
    (143.249, 1.5, -19.263),
    (182.247, 1.5, -154.5),
    (75.924, 1.5, -227.315),
    (74.662, 1.5, -230.969),
    (0, 1.5, -230.969),
    (0, 1.5, -141.54),
    (43.589, 1.5, -141.54),
    (47.05, 1.5, -144.004),
    (137.06, 1.5, -13.589),
    (135.029, 1.5, -15.62),
    (51.651, 1.5, -15.62),
    (49.62, 1.5, -13.589),
    (49.62, 1.5, 0),
    (137.06, 1.5, 0),
    (135.029, 1.5, -19.62),
    (137.06, 1.5, -21.651),
    (137.06, 1.5, -135.509),
    (135.029, 1.5, -137.54),
    (51.651, 1.5, -137.54),
    (49.62, 1.5, -135.509),
    (49.62, 1.5, -21.651),
    (51.651, 1.5, -19.62),
    (43.589, 1.5, -19.62),
    (45.62, 1.5, -21.651),
    (45.62, 1.5, -135.509),
    (43.589, 1.5, -137.54),
    (0, 1.5, -137.54),
    (0, 1.5, -19.62),
    (0, -2.5, 0),
    (45.62, 1.5, 0),
    (45.62, 1.5, -13.589),
    (43.589, 1.5, -15.62),
    (0, 1.5, -15.62),
    (224.649, 1.5, -16),
    (229.18, 1.5, -18.472),
    (229.18, 1.5, -145.528),
    (224.208, 1.5, -150.5),
    (185.152, 1.5, -150.5),
    (182.68, 1.5, -145.969),
    (182.68, 1.5, -18.031),
    (184.711, 1.5, -16),
]))
fillet.setExpression("Radius", "Params.fillet_radius")

doc.recompute()
